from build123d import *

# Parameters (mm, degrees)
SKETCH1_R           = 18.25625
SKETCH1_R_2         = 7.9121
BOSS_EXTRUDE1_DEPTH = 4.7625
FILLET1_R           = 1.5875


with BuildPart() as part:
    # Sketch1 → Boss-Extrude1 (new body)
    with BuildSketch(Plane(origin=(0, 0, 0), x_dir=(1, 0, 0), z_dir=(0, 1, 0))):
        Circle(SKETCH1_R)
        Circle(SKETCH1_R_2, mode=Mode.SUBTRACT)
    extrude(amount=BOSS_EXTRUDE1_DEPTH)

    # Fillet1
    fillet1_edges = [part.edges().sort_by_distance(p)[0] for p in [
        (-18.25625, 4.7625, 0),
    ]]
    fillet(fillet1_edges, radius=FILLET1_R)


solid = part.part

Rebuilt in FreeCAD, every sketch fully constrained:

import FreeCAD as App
import Part
import Sketcher
Q = App.Units.Quantity


def edges_at(feature, points):
    """Names of the edges that pass closest to the given points."""
    edges = feature.Shape.Edges
    near = lambda p: min(range(len(edges)), key=lambda i: edges[i].distToShape(Part.Vertex(*p))[0])
    return sorted({f"Edge{near(p) + 1}" for p in points})

doc = App.newDocument("Part")
body = doc.addObject("PartDesign::Body", "Body")

# Sketch on XZ plane
sketch1 = body.newObject("Sketcher::SketchObject", "Sketch")
sketch1.AttachmentSupport = (doc.getObject("XZ_Plane"), [""])
sketch1.MapMode = "FlatFace"
sketch1.addGeometry(Part.Circle(App.Vector(0, 0, 0), App.Vector(0, 0, 1), 18), False)
sketch1.addGeometry(Part.Circle(App.Vector(0, 0, 0), App.Vector(0, 0, 1), 8), False)
sketch1.addConstraint(Sketcher.Constraint("Coincident", 0, 3, -1, 1))
sketch1.addConstraint(Sketcher.Constraint("Coincident", 1, 3, -1, 1))
sketch1.addConstraint(Sketcher.Constraint("Diameter", 0, Q("1.4375 in")))
sketch1.addConstraint(Sketcher.Constraint("Diameter", 1, Q("0.623 in")))
pad1 = body.newObject("PartDesign::Pad", "Pad")
pad1.Profile = sketch1
pad1.Length = Q("0.1875 in")
pad1.Reversed = True
doc.recompute()

fillet = body.newObject("PartDesign::Fillet", "Fillet")
fillet.Base = (pad1, edges_at(pad1, [(-18.256, 4.763, 0)]))
fillet.Radius = Q("0.0625 in")

doc.recompute()
